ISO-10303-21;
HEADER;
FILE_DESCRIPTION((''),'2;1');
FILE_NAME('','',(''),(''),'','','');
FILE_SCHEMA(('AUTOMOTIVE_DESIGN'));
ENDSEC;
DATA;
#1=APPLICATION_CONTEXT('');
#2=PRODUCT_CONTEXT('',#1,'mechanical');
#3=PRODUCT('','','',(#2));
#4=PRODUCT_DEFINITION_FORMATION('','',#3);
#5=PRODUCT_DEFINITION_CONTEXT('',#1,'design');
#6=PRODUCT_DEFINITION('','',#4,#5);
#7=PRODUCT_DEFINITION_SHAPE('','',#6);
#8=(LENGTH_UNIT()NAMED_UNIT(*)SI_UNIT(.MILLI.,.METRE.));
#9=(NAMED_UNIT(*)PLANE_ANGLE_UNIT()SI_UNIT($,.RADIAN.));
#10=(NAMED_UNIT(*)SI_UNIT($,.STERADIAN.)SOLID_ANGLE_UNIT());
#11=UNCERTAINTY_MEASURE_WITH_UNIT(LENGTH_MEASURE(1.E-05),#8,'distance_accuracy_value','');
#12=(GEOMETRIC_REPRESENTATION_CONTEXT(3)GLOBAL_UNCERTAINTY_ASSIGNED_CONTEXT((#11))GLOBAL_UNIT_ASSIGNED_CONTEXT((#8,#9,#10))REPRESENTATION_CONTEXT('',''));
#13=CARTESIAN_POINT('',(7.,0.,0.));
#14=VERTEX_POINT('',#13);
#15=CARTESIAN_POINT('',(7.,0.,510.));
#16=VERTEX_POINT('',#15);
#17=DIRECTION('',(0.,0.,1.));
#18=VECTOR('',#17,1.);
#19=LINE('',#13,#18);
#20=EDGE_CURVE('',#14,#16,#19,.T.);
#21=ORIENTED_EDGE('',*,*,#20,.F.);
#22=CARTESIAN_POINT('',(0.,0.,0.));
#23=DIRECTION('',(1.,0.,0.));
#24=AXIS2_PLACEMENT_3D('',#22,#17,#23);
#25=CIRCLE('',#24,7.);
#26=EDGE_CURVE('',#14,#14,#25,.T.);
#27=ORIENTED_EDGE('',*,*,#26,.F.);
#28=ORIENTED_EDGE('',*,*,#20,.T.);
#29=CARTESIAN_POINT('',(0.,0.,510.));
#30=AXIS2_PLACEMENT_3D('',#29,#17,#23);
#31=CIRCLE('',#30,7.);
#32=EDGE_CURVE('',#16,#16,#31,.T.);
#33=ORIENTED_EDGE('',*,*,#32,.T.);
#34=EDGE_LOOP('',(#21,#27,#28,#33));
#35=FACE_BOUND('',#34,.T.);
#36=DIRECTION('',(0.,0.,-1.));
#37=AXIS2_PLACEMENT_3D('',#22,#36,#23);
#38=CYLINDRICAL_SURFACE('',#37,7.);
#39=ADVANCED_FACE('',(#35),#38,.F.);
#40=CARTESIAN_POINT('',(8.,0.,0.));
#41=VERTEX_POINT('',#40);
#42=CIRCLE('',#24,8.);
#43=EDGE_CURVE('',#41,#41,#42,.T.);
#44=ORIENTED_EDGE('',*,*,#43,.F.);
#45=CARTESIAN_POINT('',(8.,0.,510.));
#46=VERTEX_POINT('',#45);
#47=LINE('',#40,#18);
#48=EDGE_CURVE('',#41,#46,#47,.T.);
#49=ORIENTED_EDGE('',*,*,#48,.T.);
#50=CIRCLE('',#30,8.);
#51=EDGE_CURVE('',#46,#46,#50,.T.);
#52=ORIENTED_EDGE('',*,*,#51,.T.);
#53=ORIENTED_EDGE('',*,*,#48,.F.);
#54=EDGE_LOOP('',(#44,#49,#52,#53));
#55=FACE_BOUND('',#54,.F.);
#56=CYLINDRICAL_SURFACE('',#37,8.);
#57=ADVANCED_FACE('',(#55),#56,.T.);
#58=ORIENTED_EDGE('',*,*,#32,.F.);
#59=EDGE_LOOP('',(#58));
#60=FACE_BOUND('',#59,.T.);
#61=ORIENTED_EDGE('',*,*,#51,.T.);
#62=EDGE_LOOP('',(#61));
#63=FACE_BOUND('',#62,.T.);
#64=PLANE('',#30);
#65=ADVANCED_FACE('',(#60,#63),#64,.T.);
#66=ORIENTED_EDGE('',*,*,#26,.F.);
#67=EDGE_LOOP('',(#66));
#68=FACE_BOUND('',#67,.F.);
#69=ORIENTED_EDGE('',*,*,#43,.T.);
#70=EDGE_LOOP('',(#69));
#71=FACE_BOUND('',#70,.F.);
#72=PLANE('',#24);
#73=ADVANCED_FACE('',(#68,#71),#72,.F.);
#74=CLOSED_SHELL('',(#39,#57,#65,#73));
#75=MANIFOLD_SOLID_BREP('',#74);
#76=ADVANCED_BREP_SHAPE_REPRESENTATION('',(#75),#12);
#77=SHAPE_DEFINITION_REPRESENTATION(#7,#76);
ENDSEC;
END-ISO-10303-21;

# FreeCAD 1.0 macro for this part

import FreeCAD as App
import Part
import Sketcher
Q = App.Units.Quantity

doc = App.newDocument("Part")
body = doc.addObject("PartDesign::Body", "Body")

# Sketch on XY plane
sketch1 = body.newObject("Sketcher::SketchObject", "Sketch")
sketch1.AttachmentSupport = (doc.getObject("XY_Plane"), [""])
sketch1.MapMode = "FlatFace"
sketch1.addGeometry(Part.Circle(App.Vector(0, 0, 0), App.Vector(0, 0, 1), 8), False)
sketch1.addGeometry(Part.Circle(App.Vector(0, 0, 0), App.Vector(0, 0, 1), 7), False)
sketch1.addConstraint(Sketcher.Constraint("Coincident", 0, 3, -1, 1))
sketch1.addConstraint(Sketcher.Constraint("Coincident", 1, 3, -1, 1))
sketch1.addConstraint(Sketcher.Constraint("Diameter", 0, Q("16 mm")))
sketch1.addConstraint(Sketcher.Constraint("Diameter", 1, Q("14 mm")))
pad1 = body.newObject("PartDesign::Pad", "Pad")
pad1.Profile = sketch1
pad1.Length = 510

doc.recompute()
